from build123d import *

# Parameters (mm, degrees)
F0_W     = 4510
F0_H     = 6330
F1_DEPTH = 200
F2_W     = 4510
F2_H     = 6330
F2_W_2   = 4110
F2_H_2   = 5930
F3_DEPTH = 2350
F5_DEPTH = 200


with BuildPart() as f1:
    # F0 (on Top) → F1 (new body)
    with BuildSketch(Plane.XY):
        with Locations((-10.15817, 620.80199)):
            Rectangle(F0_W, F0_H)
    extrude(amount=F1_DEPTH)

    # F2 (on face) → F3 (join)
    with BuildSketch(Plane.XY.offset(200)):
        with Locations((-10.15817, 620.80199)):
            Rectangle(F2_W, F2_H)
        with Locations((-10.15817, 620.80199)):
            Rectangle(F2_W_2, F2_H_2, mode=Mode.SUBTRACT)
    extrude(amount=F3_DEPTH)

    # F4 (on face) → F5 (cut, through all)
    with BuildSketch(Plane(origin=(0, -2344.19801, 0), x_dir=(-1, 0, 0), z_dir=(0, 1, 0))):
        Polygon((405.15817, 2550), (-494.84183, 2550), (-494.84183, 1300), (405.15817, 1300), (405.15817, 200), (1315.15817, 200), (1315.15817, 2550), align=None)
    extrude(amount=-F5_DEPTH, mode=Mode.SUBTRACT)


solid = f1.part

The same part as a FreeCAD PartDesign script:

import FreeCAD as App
import Part
import Sketcher
from FreeCAD import Vector


def add_polygon(sketch, points):
    """Adds a closed chain of lines whose ends are joined by coincident constraints."""
    first, n = sketch.GeometryCount, len(points)
    for a, b in zip(points, points[1:] + points[:1]):
        sketch.addGeometry(Part.LineSegment(App.Vector(*a, 0), App.Vector(*b, 0)), False)
    for i in range(n):
        sketch.addConstraint(Sketcher.Constraint("Coincident", first + i, 2, first + (i + 1) % n, 1))

doc = App.newDocument("Part")
params = doc.addObject("Spreadsheet::Sheet", "Params")
for row, (alias, value) in enumerate([
    ("sketch1_width", "4510 mm"),
    ("sketch1_height", "6330 mm"),
    ("pad1_length", "200 mm"),
    ("sketch2_width", "4510 mm"),
    ("sketch2_width2", "4110 mm"),
    ("sketch2_height", "6330 mm"),
    ("sketch2_height2", "5930 mm"),
    ("pad2_length", "2350 mm"),
    ("sketch3_width", "900 mm"),
    ("sketch3_width2", "910 mm"),
    ("sketch3_height", "1250 mm"),
    ("sketch3_height2", "1100 mm"),
], start=1):
    params.set(f"A{row}", alias)
    params.set(f"B{row}", "=" + value)
    params.setAlias(f"B{row}", alias)

body = doc.addObject("PartDesign::Body", "Body")

sketch1 = body.newObject("Sketcher::SketchObject", "Sketch")
sketch1.AttachmentSupport = (doc.getObject("XY_Plane"), [""])
sketch1.MapMode = "FlatFace"
add_polygon(sketch1, [(-2265, 3786), (-2265, -2544), (2245, -2544), (2245, 3786)])
sketch1.addConstraint([
    Sketcher.Constraint("Vertical", 0),
    Sketcher.Constraint("Horizontal", 1),
    Sketcher.Constraint("Vertical", 2),
    Sketcher.Constraint("Horizontal", 3),
    Sketcher.Constraint("DistanceX", 1, 1, 1, 2, 4510.0),
    Sketcher.Constraint("DistanceY", 0, 2, 0, 1, 6330.0),
    Sketcher.Constraint("DistanceX", 0, 2, -1, 1, 2265.15817),
    Sketcher.Constraint("DistanceY", 0, 2, -1, 1, 2544.19801),
])
sketch1.setExpression("Constraints[8]", "Params.sketch1_width")
sketch1.setExpression("Constraints[9]", "Params.sketch1_height")
pad1 = body.newObject("PartDesign::Pad", "Pad")
pad1.Profile = sketch1
pad1.setExpression("Length", "Params.pad1_length")

sketch2 = body.newObject("Sketcher::SketchObject", "Sketch001")
sketch2.AttachmentSupport = (doc.getObject("XY_Plane"), [""])
sketch2.MapMode = "FlatFace"
sketch2.AttachmentOffset = App.Placement(Vector(0, 0, 200), App.Rotation())
add_polygon(sketch2, [(-2265, 3786), (-2265, -2544), (2245, -2544), (2245, 3786)])
add_polygon(sketch2, [(2045, -2344), (-2065, -2344), (-2065, 3586), (2045, 3586)])
sketch2.addConstraint([
    Sketcher.Constraint("Vertical", 0),
    Sketcher.Constraint("Horizontal", 1),
    Sketcher.Constraint("Vertical", 2),
    Sketcher.Constraint("Horizontal", 3),
    Sketcher.Constraint("Horizontal", 4),
    Sketcher.Constraint("Vertical", 5),
    Sketcher.Constraint("Horizontal", 6),
    Sketcher.Constraint("Vertical", 7),
    Sketcher.Constraint("DistanceX", 1, 1, 1, 2, 4510.0),
    Sketcher.Constraint("DistanceX", 4, 2, 4, 1, 4110.0),
    Sketcher.Constraint("DistanceY", 0, 2, 0, 1, 6330.0),
    Sketcher.Constraint("DistanceY", 5, 1, 5, 2, 5930.0),
    Sketcher.Constraint("DistanceX", 0, 2, 4, 2, 200.0),
    Sketcher.Constraint("DistanceY", 0, 2, 4, 2, 200.0),
    Sketcher.Constraint("DistanceX", 0, 2, -1, 1, 2265.15817),
    Sketcher.Constraint("DistanceY", 0, 2, -1, 1, 2544.19801),
])
sketch2.setExpression("Constraints[16]", "Params.sketch2_width")
sketch2.setExpression("Constraints[17]", "Params.sketch2_width2")
sketch2.setExpression("Constraints[18]", "Params.sketch2_height")
sketch2.setExpression("Constraints[19]", "Params.sketch2_height2")
pad2 = body.newObject("PartDesign::Pad", "Pad001")
pad2.Profile = sketch2
pad2.setExpression("Length", "Params.pad2_length")

sketch3 = body.newObject("Sketcher::SketchObject", "Sketch002")
sketch3.AttachmentSupport = (doc.getObject("XZ_Plane"), [""])
sketch3.MapMode = "FlatFace"
sketch3.AttachmentOffset = App.Placement(Vector(0, 0, 2344.19801), App.Rotation())
add_polygon(sketch3, [(495, 2550), (495, 1300), (-405, 1300), (-405, 200), (-1315, 200), (-1315, 2550)])
sketch3.addConstraint([
    Sketcher.Constraint("Vertical", 0),
    Sketcher.Constraint("Horizontal", 1),
    Sketcher.Constraint("Vertical", 2),
    Sketcher.Constraint("Horizontal", 3),
    Sketcher.Constraint("Vertical", 4),
    Sketcher.Constraint("Horizontal", 5),
    Sketcher.Constraint("DistanceX", 1, 2, 1, 1, 900.0),
    Sketcher.Constraint("DistanceX", 3, 2, 3, 1, 910.0),
    Sketcher.Constraint("DistanceY", 0, 2, 0, 1, 1250.0),
    Sketcher.Constraint("DistanceY", 2, 2, 2, 1, 1100.0),
    Sketcher.Constraint("DistanceY", -1, 1, 0, 2, 1300.0),
    Sketcher.Constraint("DistanceX", -1, 1, 0, 2, 494.84183),
])
sketch3.setExpression("Constraints[12]", "Params.sketch3_width")
sketch3.setExpression("Constraints[13]", "Params.sketch3_width2")
sketch3.setExpression("Constraints[14]", "Params.sketch3_height")
sketch3.setExpression("Constraints[15]", "Params.sketch3_height2")
pocket1 = body.newObject("PartDesign::Pocket", "Pocket")
pocket1.Profile = sketch3
pocket1.Type = "ThroughAll"
pocket1.Reversed = True

doc.recompute()
